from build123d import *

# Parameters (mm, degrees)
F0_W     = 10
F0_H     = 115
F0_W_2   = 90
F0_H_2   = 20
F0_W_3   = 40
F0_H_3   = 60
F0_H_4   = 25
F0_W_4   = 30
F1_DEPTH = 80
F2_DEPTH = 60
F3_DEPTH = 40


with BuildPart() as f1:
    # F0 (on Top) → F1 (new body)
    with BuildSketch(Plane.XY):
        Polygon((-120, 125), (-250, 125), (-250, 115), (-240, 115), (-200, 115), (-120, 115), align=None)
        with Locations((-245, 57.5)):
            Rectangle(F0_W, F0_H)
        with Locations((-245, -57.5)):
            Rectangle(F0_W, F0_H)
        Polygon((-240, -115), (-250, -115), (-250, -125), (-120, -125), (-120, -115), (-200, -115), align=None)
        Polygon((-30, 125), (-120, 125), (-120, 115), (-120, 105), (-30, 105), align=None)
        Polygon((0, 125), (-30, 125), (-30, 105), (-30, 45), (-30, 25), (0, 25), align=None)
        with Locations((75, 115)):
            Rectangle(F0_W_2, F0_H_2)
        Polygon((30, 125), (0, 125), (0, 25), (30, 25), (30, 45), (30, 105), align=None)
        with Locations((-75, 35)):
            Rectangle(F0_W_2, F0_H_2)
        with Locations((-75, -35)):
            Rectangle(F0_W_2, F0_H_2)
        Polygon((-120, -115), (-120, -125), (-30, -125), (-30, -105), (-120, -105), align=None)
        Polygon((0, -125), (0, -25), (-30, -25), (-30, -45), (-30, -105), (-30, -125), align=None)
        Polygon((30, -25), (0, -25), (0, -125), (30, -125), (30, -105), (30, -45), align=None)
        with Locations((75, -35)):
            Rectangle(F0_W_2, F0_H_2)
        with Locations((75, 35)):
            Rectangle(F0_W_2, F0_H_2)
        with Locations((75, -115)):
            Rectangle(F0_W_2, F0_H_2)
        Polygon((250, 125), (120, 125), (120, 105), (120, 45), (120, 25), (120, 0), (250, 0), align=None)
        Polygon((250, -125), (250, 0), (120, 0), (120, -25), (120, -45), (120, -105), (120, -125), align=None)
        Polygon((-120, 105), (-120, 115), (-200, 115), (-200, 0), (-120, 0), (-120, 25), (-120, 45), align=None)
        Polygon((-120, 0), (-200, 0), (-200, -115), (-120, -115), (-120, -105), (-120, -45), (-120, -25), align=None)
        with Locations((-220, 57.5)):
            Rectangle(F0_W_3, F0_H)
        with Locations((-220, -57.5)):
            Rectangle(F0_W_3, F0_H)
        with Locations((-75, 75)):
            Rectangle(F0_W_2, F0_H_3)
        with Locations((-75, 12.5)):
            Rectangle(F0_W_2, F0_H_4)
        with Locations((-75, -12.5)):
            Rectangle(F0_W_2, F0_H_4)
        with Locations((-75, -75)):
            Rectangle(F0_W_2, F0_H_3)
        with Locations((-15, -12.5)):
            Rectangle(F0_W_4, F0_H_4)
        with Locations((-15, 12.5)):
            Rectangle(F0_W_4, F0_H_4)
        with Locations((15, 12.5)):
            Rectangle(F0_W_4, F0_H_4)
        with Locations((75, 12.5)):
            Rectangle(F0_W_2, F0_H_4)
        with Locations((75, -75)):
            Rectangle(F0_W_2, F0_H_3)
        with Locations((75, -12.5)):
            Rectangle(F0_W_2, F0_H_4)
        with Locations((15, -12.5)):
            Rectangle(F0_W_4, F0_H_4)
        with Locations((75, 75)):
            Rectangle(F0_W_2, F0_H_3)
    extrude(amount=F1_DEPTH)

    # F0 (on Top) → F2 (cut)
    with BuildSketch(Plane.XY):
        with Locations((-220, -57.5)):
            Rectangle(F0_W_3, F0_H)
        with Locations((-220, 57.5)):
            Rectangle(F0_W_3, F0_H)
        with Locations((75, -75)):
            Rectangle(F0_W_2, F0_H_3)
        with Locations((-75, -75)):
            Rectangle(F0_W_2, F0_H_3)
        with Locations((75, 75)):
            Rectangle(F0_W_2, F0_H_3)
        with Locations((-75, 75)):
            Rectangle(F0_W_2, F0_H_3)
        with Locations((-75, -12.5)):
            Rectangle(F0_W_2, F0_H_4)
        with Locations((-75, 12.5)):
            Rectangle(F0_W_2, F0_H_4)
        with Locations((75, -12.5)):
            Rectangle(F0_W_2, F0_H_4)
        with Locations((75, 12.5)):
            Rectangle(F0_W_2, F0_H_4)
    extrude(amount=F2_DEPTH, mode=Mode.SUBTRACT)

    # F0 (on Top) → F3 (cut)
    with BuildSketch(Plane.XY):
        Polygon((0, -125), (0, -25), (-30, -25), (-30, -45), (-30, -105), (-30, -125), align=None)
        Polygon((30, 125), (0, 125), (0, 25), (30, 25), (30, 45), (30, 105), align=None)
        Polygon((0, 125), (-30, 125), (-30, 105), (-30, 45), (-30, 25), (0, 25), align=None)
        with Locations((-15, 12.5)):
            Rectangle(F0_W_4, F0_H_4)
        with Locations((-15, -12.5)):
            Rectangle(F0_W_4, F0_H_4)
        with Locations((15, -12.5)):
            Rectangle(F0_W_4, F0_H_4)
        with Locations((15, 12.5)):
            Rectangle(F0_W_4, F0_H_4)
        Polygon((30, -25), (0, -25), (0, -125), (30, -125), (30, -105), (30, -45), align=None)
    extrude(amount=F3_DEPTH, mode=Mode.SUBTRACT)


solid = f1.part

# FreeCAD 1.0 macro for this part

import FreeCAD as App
import Part
import Sketcher

V = App.Vector
Q = App.Units.Quantity

doc = App.newDocument("Part")
body = doc.addObject("PartDesign::Body", "Body")

sketch1 = body.newObject("Sketcher::SketchObject", "Sketch")
sketch1.AttachmentSupport = (doc.getObject("XY_Plane"), [""])
sketch1.MapMode = "FlatFace"
sketch1.addGeometry(Part.LineSegment(V(-250, 125, 0), V(-250, -125, 0)), False)
sketch1.addGeometry(Part.LineSegment(V(-250, -125, 0), V(250, -125, 0)), False)
sketch1.addGeometry(Part.LineSegment(V(250, -125, 0), V(250, 125, 0)), False)
sketch1.addGeometry(Part.LineSegment(V(250, 125, 0), V(-250, 125, 0)), False)
sketch1.addConstraint(Sketcher.Constraint("Coincident", 0, 2, 1, 1))
sketch1.addConstraint(Sketcher.Constraint("Coincident", 1, 2, 2, 1))
sketch1.addConstraint(Sketcher.Constraint("Coincident", 2, 2, 3, 1))
sketch1.addConstraint(Sketcher.Constraint("Coincident", 3, 2, 0, 1))
sketch1.addConstraint(Sketcher.Constraint("Vertical", 0))
sketch1.addConstraint(Sketcher.Constraint("Horizontal", 1))
sketch1.addConstraint(Sketcher.Constraint("Vertical", 2))
sketch1.addConstraint(Sketcher.Constraint("Horizontal", 3))
sketch1.addConstraint(Sketcher.Constraint("Symmetric", 0, 2, 2, 2, -1, 1))
sketch1.addConstraint(Sketcher.Constraint("DistanceX", 1, 1, 1, 2, Q("500 mm")))
sketch1.addConstraint(Sketcher.Constraint("DistanceY", 0, 2, 0, 1, Q("250 mm")))
pad1 = body.newObject("PartDesign::Pad", "Pad")
pad1.Profile = sketch1
pad1.Length = 80

sketch2 = body.newObject("Sketcher::SketchObject", "Sketch001")
sketch2.AttachmentSupport = (doc.getObject("XY_Plane"), [""])
sketch2.MapMode = "FlatFace"
sketch2.addGeometry(Part.LineSegment(V(-240, -115, 0), V(-200, -115, 0)), False)
sketch2.addGeometry(Part.LineSegment(V(-200, -115, 0), V(-200, 115, 0)), False)
sketch2.addGeometry(Part.LineSegment(V(-200, 115, 0), V(-240, 115, 0)), False)
sketch2.addGeometry(Part.LineSegment(V(-240, 115, 0), V(-240, -115, 0)), False)
sketch2.addGeometry(Part.LineSegment(V(30, -45, 0), V(30, -105, 0)), False)
sketch2.addGeometry(Part.LineSegment(V(30, -105, 0), V(120, -105, 0)), False)
sketch2.addGeometry(Part.LineSegment(V(120, -105, 0), V(120, -45, 0)), False)
sketch2.addGeometry(Part.LineSegment(V(120, -45, 0), V(30, -45, 0)), False)
sketch2.addGeometry(Part.LineSegment(V(-120, -45, 0), V(-120, -105, 0)), False)
sketch2.addGeometry(Part.LineSegment(V(-120, -105, 0), V(-30, -105, 0)), False)
sketch2.addGeometry(Part.LineSegment(V(-30, -105, 0), V(-30, -45, 0)), False)
sketch2.addGeometry(Part.LineSegment(V(-30, -45, 0), V(-120, -45, 0)), False)
sketch2.addGeometry(Part.LineSegment(V(30, 105, 0), V(30, 45, 0)), False)
sketch2.addGeometry(Part.LineSegment(V(30, 45, 0), V(120, 45, 0)), False)
sketch2.addGeometry(Part.LineSegment(V(120, 45, 0), V(120, 105, 0)), False)
sketch2.addGeometry(Part.LineSegment(V(120, 105, 0), V(30, 105, 0)), False)
sketch2.addGeometry(Part.LineSegment(V(-120, 105, 0), V(-120, 45, 0)), False)
sketch2.addGeometry(Part.LineSegment(V(-120, 45, 0), V(-30, 45, 0)), False)
sketch2.addGeometry(Part.LineSegment(V(-30, 45, 0), V(-30, 105, 0)), False)
sketch2.addGeometry(Part.LineSegment(V(-30, 105, 0), V(-120, 105, 0)), False)
sketch2.addGeometry(Part.LineSegment(V(-120, -25, 0), V(-30, -25, 0)), False)
sketch2.addGeometry(Part.LineSegment(V(-30, -25, 0), V(-30, 25, 0)), False)
sketch2.addGeometry(Part.LineSegment(V(-30, 25, 0), V(-120, 25, 0)), False)
sketch2.addGeometry(Part.LineSegment(V(-120, 25, 0), V(-120, -25, 0)), False)
sketch2.addGeometry(Part.LineSegment(V(30, -25, 0), V(120, -25, 0)), False)
sketch2.addGeometry(Part.LineSegment(V(120, -25, 0), V(120, 25, 0)), False)
sketch2.addGeometry(Part.LineSegment(V(120, 25, 0), V(30, 25, 0)), False)
sketch2.addGeometry(Part.LineSegment(V(30, 25, 0), V(30, -25, 0)), False)
sketch2.addConstraint(Sketcher.Constraint("Coincident", 0, 2, 1, 1))
sketch2.addConstraint(Sketcher.Constraint("Coincident", 1, 2, 2, 1))
sketch2.addConstraint(Sketcher.Constraint("Coincident", 2, 2, 3, 1))
sketch2.addConstraint(Sketcher.Constraint("Coincident", 3, 2, 0, 1))
sketch2.addConstraint(Sketcher.Constraint("Coincident", 4, 2, 5, 1))
sketch2.addConstraint(Sketcher.Constraint("Coincident", 5, 2, 6, 1))
sketch2.addConstraint(Sketcher.Constraint("Coincident", 6, 2, 7, 1))
sketch2.addConstraint(Sketcher.Constraint("Coincident", 7, 2, 4, 1))
sketch2.addConstraint(Sketcher.Constraint("Coincident", 8, 2, 9, 1))
sketch2.addConstraint(Sketcher.Constraint("Coincident", 9, 2, 10, 1))
sketch2.addConstraint(Sketcher.Constraint("Coincident", 10, 2, 11, 1))
sketch2.addConstraint(Sketcher.Constraint("Coincident", 11, 2, 8, 1))
sketch2.addConstraint(Sketcher.Constraint("Coincident", 12, 2, 13, 1))
sketch2.addConstraint(Sketcher.Constraint("Coincident", 13, 2, 14, 1))
sketch2.addConstraint(Sketcher.Constraint("Coincident", 14, 2, 15, 1))
sketch2.addConstraint(Sketcher.Constraint("Coincident", 15, 2, 12, 1))
sketch2.addConstraint(Sketcher.Constraint("Coincident", 16, 2, 17, 1))
sketch2.addConstraint(Sketcher.Constraint("Coincident", 17, 2, 18, 1))
sketch2.addConstraint(Sketcher.Constraint("Coincident", 18, 2, 19, 1))
sketch2.addConstraint(Sketcher.Constraint("Coincident", 19, 2, 16, 1))
sketch2.addConstraint(Sketcher.Constraint("Coincident", 20, 2, 21, 1))
sketch2.addConstraint(Sketcher.Constraint("Coincident", 21, 2, 22, 1))
sketch2.addConstraint(Sketcher.Constraint("Coincident", 22, 2, 23, 1))
sketch2.addConstraint(Sketcher.Constraint("Coincident", 23, 2, 20, 1))
sketch2.addConstraint(Sketcher.Constraint("Coincident", 24, 2, 25, 1))
sketch2.addConstraint(Sketcher.Constraint("Coincident", 25, 2, 26, 1))
sketch2.addConstraint(Sketcher.Constraint("Coincident", 26, 2, 27, 1))
sketch2.addConstraint(Sketcher.Constraint("Coincident", 27, 2, 24, 1))
sketch2.addConstraint(Sketcher.Constraint("Horizontal", 0))
sketch2.addConstraint(Sketcher.Constraint("Vertical", 1))
sketch2.addConstraint(Sketcher.Constraint("Horizontal", 2))
sketch2.addConstraint(Sketcher.Constraint("Vertical", 3))
sketch2.addConstraint(Sketcher.Constraint("Vertical", 4))
sketch2.addConstraint(Sketcher.Constraint("Horizontal", 5))
sketch2.addConstraint(Sketcher.Constraint("Vertical", 6))
sketch2.addConstraint(Sketcher.Constraint("Horizontal", 7))
sketch2.addConstraint(Sketcher.Constraint("Vertical", 8))
sketch2.addConstraint(Sketcher.Constraint("Horizontal", 9))
sketch2.addConstraint(Sketcher.Constraint("Vertical", 10))
sketch2.addConstraint(Sketcher.Constraint("Horizontal", 11))
sketch2.addConstraint(Sketcher.Constraint("Vertical", 12))
sketch2.addConstraint(Sketcher.Constraint("Horizontal", 13))
sketch2.addConstraint(Sketcher.Constraint("Vertical", 14))
sketch2.addConstraint(Sketcher.Constraint("Horizontal", 15))
sketch2.addConstraint(Sketcher.Constraint("Vertical", 16))
sketch2.addConstraint(Sketcher.Constraint("Horizontal", 17))
sketch2.addConstraint(Sketcher.Constraint("Vertical", 18))
sketch2.addConstraint(Sketcher.Constraint("Horizontal", 19))
sketch2.addConstraint(Sketcher.Constraint("Horizontal", 20))
sketch2.addConstraint(Sketcher.Constraint("Vertical", 21))
sketch2.addConstraint(Sketcher.Constraint("Horizontal", 22))
sketch2.addConstraint(Sketcher.Constraint("Vertical", 23))
sketch2.addConstraint(Sketcher.Constraint("Horizontal", 24))
sketch2.addConstraint(Sketcher.Constraint("Vertical", 25))
sketch2.addConstraint(Sketcher.Constraint("Horizontal", 26))
sketch2.addConstraint(Sketcher.Constraint("Vertical", 27))
sketch2.addConstraint(Sketcher.Constraint("Symmetric", 10, 2, 12, 2, -1, 1))
sketch2.addConstraint(Sketcher.Constraint("Symmetric", 8, 2, 14, 2, -1, 1))
sketch2.addConstraint(Sketcher.Constraint("Symmetric", 6, 2, 16, 2, -1, 1))
sketch2.addConstraint(Sketcher.Constraint("Symmetric", 4, 2, 18, 2, -1, 1))
sketch2.addConstraint(Sketcher.Constraint("Symmetric", 22, 2, 24, 2, -1, 1))
sketch2.addConstraint(Sketcher.Constraint("Symmetric", 20, 2, 26, 2, -1, 1))
sketch2.addConstraint(Sketcher.Constraint("Symmetric", 5, 2, 8, 2, -2))
sketch2.addConstraint(Sketcher.Constraint("Symmetric", 7, 2, 10, 2, -2))
sketch2.addConstraint(Sketcher.Constraint("Horizontal", 23, 2, 24, 2))
sketch2.addConstraint(Sketcher.Constraint("Vertical", 18, 2, 20, 2))
sketch2.addConstraint(Sketcher.Constraint("Vertical", 19, 2, 22, 2))
sketch2.addConstraint(Sketcher.Constraint("DistanceX", 0, 1, 0, 2, Q("40 mm")))
sketch2.addConstraint(Sketcher.Constraint("DistanceX", 5, 1, 5, 2, Q("90 mm")))
sketch2.addConstraint(Sketcher.Constraint("DistanceY", 1, 1, 1, 2, Q("230 mm")))
sketch2.addConstraint(Sketcher.Constraint("DistanceY", 4, 2, 4, 1, Q("60 mm")))
sketch2.addConstraint(Sketcher.Constraint("DistanceY", 21, 1, 21, 2, Q("50 mm")))
sketch2.addConstraint(Sketcher.Constraint("DistanceX", 0, 2, -1, 1, Q("200 mm")))
sketch2.addConstraint(Sketcher.Constraint("DistanceY", 0, 2, -1, 1, Q("115 mm")))
sketch2.addConstraint(Sketcher.Constraint("DistanceX", -1, 1, 4, 2, Q("30 mm")))
sketch2.addConstraint(Sketcher.Constraint("DistanceY", 4, 2, -1, 1, Q("105 mm")))
pocket1 = body.newObject("PartDesign::Pocket", "Pocket")
pocket1.Profile = sketch2
pocket1.Length = 60
pocket1.Reversed = True

sketch3 = body.newObject("Sketcher::SketchObject", "Sketch002")
sketch3.AttachmentSupport = (doc.getObject("XY_Plane"), [""])
sketch3.MapMode = "FlatFace"
sketch3.addGeometry(Part.LineSegment(V(30, 125, 0), V(-30, 125, 0)), False)
sketch3.addGeometry(Part.LineSegment(V(-30, 125, 0), V(-30, -125, 0)), False)
sketch3.addGeometry(Part.LineSegment(V(-30, -125, 0), V(30, -125, 0)), False)
sketch3.addGeometry(Part.LineSegment(V(30, -125, 0), V(30, 125, 0)), False)
sketch3.addConstraint(Sketcher.Constraint("Coincident", 0, 2, 1, 1))
sketch3.addConstraint(Sketcher.Constraint("Coincident", 1, 2, 2, 1))
sketch3.addConstraint(Sketcher.Constraint("Coincident", 2, 2, 3, 1))
sketch3.addConstraint(Sketcher.Constraint("Coincident", 3, 2, 0, 1))
sketch3.addConstraint(Sketcher.Constraint("Horizontal", 0))
sketch3.addConstraint(Sketcher.Constraint("Vertical", 1))
sketch3.addConstraint(Sketcher.Constraint("Horizontal", 2))
sketch3.addConstraint(Sketcher.Constraint("Vertical", 3))
sketch3.addConstraint(Sketcher.Constraint("Symmetric", 0, 2, 2, 2, -1, 1))
sketch3.addConstraint(Sketcher.Constraint("DistanceX", 0, 2, 0, 1, Q("60 mm")))
sketch3.addConstraint(Sketcher.Constraint("DistanceY", 1, 2, 1, 1, Q("250 mm")))
pocket2 = body.newObject("PartDesign::Pocket", "Pocket001")
pocket2.Profile = sketch3
pocket2.Length = 40
pocket2.Reversed = True

doc.recompute()
